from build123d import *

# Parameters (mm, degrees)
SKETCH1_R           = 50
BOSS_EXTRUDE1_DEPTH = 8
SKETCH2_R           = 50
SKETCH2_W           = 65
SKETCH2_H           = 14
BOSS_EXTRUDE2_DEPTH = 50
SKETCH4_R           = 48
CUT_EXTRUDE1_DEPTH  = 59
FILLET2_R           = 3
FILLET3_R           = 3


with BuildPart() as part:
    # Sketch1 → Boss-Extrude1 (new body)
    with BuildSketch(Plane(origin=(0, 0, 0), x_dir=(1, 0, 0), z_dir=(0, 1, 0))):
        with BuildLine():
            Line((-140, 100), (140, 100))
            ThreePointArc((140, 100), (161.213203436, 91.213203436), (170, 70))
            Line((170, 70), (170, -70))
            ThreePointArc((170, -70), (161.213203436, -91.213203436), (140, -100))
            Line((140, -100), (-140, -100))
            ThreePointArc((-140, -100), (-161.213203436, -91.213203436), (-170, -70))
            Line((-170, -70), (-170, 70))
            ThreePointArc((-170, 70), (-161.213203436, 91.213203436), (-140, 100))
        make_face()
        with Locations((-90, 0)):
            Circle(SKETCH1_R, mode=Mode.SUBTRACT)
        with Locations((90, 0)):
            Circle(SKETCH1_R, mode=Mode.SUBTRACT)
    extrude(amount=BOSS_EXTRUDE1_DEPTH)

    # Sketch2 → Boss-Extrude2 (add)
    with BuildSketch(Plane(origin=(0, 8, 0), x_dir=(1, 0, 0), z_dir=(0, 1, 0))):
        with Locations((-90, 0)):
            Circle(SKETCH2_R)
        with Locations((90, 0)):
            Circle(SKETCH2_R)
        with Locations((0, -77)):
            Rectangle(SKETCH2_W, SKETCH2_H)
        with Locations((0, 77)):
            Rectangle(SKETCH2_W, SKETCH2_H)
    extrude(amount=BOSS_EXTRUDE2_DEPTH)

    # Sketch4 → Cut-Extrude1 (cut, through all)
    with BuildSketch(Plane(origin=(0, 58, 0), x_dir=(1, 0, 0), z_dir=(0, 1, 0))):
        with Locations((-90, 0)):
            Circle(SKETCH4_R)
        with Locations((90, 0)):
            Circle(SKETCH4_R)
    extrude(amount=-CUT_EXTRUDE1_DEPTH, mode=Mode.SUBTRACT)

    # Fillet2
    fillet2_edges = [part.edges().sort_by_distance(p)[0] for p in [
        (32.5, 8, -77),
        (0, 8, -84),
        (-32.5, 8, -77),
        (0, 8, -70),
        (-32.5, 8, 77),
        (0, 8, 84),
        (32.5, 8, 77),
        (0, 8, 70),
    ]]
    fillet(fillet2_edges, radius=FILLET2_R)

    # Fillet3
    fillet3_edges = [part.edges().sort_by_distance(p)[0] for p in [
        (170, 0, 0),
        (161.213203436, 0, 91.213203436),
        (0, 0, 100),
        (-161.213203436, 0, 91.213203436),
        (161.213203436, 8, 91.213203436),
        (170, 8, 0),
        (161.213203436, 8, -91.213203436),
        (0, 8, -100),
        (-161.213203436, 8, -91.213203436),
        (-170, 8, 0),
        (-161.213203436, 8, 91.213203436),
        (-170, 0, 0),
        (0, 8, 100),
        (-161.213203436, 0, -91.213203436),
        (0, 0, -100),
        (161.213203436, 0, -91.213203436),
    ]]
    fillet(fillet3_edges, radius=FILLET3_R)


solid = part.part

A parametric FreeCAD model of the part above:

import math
import FreeCAD as App
import Part
import Sketcher

V = App.Vector


def edges_at(feature, points):
    """Names of the edges that pass closest to the given points."""
    edges = feature.Shape.Edges
    near = lambda p: min(range(len(edges)), key=lambda i: edges[i].distToShape(Part.Vertex(*p))[0])
    return sorted({f"Edge{near(p) + 1}" for p in points})


def add_polygon(sketch, points):
    """Adds a closed chain of lines whose ends are joined by coincident constraints."""
    first, n = sketch.GeometryCount, len(points)
    for a, b in zip(points, points[1:] + points[:1]):
        sketch.addGeometry(Part.LineSegment(App.Vector(*a, 0), App.Vector(*b, 0)), False)
    for i in range(n):
        sketch.addConstraint(Sketcher.Constraint("Coincident", first + i, 2, first + (i + 1) % n, 1))

doc = App.newDocument("Part")
body = doc.addObject("PartDesign::Body", "Body")
body.AllowCompound = True

sketch1 = body.newObject("Sketcher::SketchObject", "Sketch")
sketch1.AttachmentSupport = (doc.getObject("XZ_Plane"), [""])
sketch1.MapMode = "FlatFace"
sketch1.addGeometry(Part.LineSegment(V(140, -100, 0), V(-140, -100, 0)), False)
sketch1.addGeometry(Part.ArcOfCircle(Part.Circle(V(-140, -70, 0), V(0, 0, 1), 30), math.radians(180), math.radians(270)), False)
sketch1.addGeometry(Part.LineSegment(V(-170, -70, 0), V(-170, 70, 0)), False)
sketch1.addGeometry(Part.ArcOfCircle(Part.Circle(V(-140, 70, 0), V(0, 0, 1), 30), math.radians(90), math.radians(180)), False)
sketch1.addGeometry(Part.LineSegment(V(-140, 100, 0), V(140, 100, 0)), False)
sketch1.addGeometry(Part.ArcOfCircle(Part.Circle(V(140, 70, 0), V(0, 0, 1), 30), math.radians(0), math.radians(90)), False)
sketch1.addGeometry(Part.LineSegment(V(170, 70, 0), V(170, -70, 0)), False)
sketch1.addGeometry(Part.ArcOfCircle(Part.Circle(V(140, -70, 0), V(0, 0, 1), 30), math.radians(-90), math.radians(0)), False)
sketch1.addGeometry(Part.Circle(V(90, 0, 0), V(0, 0, 1), 50), False)
sketch1.addGeometry(Part.Circle(V(-90, 0, 0), V(0, 0, 1), 50), False)
sketch1.addConstraint(Sketcher.Constraint("Tangent", 0, 2, 1, 2))
sketch1.addConstraint(Sketcher.Constraint("Tangent", 1, 1, 2, 1))
sketch1.addConstraint(Sketcher.Constraint("Tangent", 2, 2, 3, 2))
sketch1.addConstraint(Sketcher.Constraint("Tangent", 3, 1, 4, 1))
sketch1.addConstraint(Sketcher.Constraint("Tangent", 4, 2, 5, 2))
sketch1.addConstraint(Sketcher.Constraint("Tangent", 5, 1, 6, 1))
sketch1.addConstraint(Sketcher.Constraint("Tangent", 6, 2, 7, 2))
sketch1.addConstraint(Sketcher.Constraint("Tangent", 7, 1, 0, 1))
sketch1.addConstraint(Sketcher.Constraint("Horizontal", 0))
sketch1.addConstraint(Sketcher.Constraint("Vertical", 2))
sketch1.addConstraint(Sketcher.Constraint("Horizontal", 4))
sketch1.addConstraint(Sketcher.Constraint("Vertical", 6))
sketch1.addConstraint(Sketcher.Constraint("Equal", 1, 3))
sketch1.addConstraint(Sketcher.Constraint("Equal", 3, 5))
sketch1.addConstraint(Sketcher.Constraint("Equal", 5, 7))
sketch1.addConstraint(Sketcher.Constraint("Equal", 8, 9))
sketch1.addConstraint(Sketcher.Constraint("Symmetric", 1, 3, 5, 3, -1, 1))
sketch1.addConstraint(Sketcher.Constraint("Symmetric", 8, 3, 9, 3, -1, 1))
sketch1.addConstraint(Sketcher.Constraint("PointOnObject", 8, 3, -1))
sketch1.addConstraint(Sketcher.Constraint("Diameter", 8, 100.0))
sketch1.addConstraint(Sketcher.Constraint("Radius", 1, 30.0))
sketch1.addConstraint(Sketcher.Constraint("DistanceX", 0, 2, 0, 1, 280.0))
sketch1.addConstraint(Sketcher.Constraint("DistanceY", 2, 1, 2, 2, 140.0))
sketch1.addConstraint(Sketcher.Constraint("DistanceX", -1, 1, 8, 3, 90.0))
pad1 = body.newObject("PartDesign::Pad", "Pad")
pad1.Profile = sketch1
pad1.Length = 8
pad1.Reversed = True

sketch2 = body.newObject("Sketcher::SketchObject", "Sketch001")
sketch2.AttachmentSupport = (doc.getObject("XZ_Plane"), [""])
sketch2.MapMode = "FlatFace"
sketch2.AttachmentOffset = App.Placement(V(0, 0, -8), App.Rotation())
sketch2.addGeometry(Part.Circle(V(-90, 0, 0), V(0, 0, 1), 50), False)
sketch2.addGeometry(Part.Circle(V(90, 0, 0), V(0, 0, 1), 50), False)
add_polygon(sketch2, [(-32, 70), (-32, 84), (32, 84), (32, 70)])
add_polygon(sketch2, [(-32, -84), (-32, -70), (32, -70), (32, -84)])
sketch2.addConstraint(Sketcher.Constraint("Vertical", 2))
sketch2.addConstraint(Sketcher.Constraint("Horizontal", 3))
sketch2.addConstraint(Sketcher.Constraint("Vertical", 4))
sketch2.addConstraint(Sketcher.Constraint("Horizontal", 5))
sketch2.addConstraint(Sketcher.Constraint("Vertical", 6))
sketch2.addConstraint(Sketcher.Constraint("Horizontal", 7))
sketch2.addConstraint(Sketcher.Constraint("Vertical", 8))
sketch2.addConstraint(Sketcher.Constraint("Horizontal", 9))
sketch2.addConstraint(Sketcher.Constraint("Equal", 0, 1))
sketch2.addConstraint(Sketcher.Constraint("Symmetric", 0, 3, 1, 3, -1, 1))
sketch2.addConstraint(Sketcher.Constraint("Symmetric", 4, 2, 6, 2, -1, 1))
sketch2.addConstraint(Sketcher.Constraint("Symmetric", 2, 2, 8, 2, -1, 1))
sketch2.addConstraint(Sketcher.Constraint("PointOnObject", 0, 3, -1))
sketch2.addConstraint(Sketcher.Constraint("Vertical", 5, 2, 6, 2))
sketch2.addConstraint(Sketcher.Constraint("Diameter", 0, 100.0))
sketch2.addConstraint(Sketcher.Constraint("DistanceX", 3, 1, 3, 2, 65.0))
sketch2.addConstraint(Sketcher.Constraint("DistanceY", 2, 1, 2, 2, 14.0))
sketch2.addConstraint(Sketcher.Constraint("DistanceX", 0, 3, -1, 1, 90.0))
sketch2.addConstraint(Sketcher.Constraint("DistanceY", -1, 1, 2, 2, 84.0))
pad2 = body.newObject("PartDesign::Pad", "Pad001")
pad2.Profile = sketch2
pad2.Length = 50
pad2.Reversed = True

sketch3 = body.newObject("Sketcher::SketchObject", "Sketch002")
sketch3.AttachmentSupport = (doc.getObject("XZ_Plane"), [""])
sketch3.MapMode = "FlatFace"
sketch3.AttachmentOffset = App.Placement(V(0, 0, -58), App.Rotation())
sketch3.addGeometry(Part.Circle(V(-90, 0, 0), V(0, 0, 1), 48), False)
sketch3.addGeometry(Part.Circle(V(90, 0, 0), V(0, 0, 1), 48), False)
sketch3.addConstraint(Sketcher.Constraint("Equal", 0, 1))
sketch3.addConstraint(Sketcher.Constraint("Symmetric", 0, 3, 1, 3, -1, 1))
sketch3.addConstraint(Sketcher.Constraint("PointOnObject", 0, 3, -1))
sketch3.addConstraint(Sketcher.Constraint("Diameter", 0, 96.0))
sketch3.addConstraint(Sketcher.Constraint("DistanceX", 0, 3, -1, 1, 90.0))
pocket1 = body.newObject("PartDesign::Pocket", "Pocket")
pocket1.Profile = sketch3
pocket1.Type = "ThroughAll"
pocket1.Reversed = True
doc.recompute()

fillet = body.newObject("PartDesign::Fillet", "Fillet")
fillet.Base = (pocket1, edges_at(pocket1, [
    (32.5, 8, -77),
    (0, 8, -84),
    (-32.5, 8, -77),
    (0, 8, -70),
    (-32.5, 8, 77),
    (0, 8, 84),
    (32.5, 8, 77),
    (0, 8, 70),
]))
fillet.Radius = 3
doc.recompute()

fillet2 = body.newObject("PartDesign::Fillet", "Fillet001")
fillet2.Base = (fillet, edges_at(fillet, [
    (170, 0, 0),
    (161.213, 0, 91.213),
    (0, 0, 100),
    (-161.213, 0, 91.213),
    (161.213, 8, 91.213),
    (170, 8, 0),
    (161.213, 8, -91.213),
    (0, 8, -100),
    (-161.213, 8, -91.213),
    (-170, 8, 0),
    (-161.213, 8, 91.213),
    (-170, 0, 0),
    (0, 8, 100),
    (-161.213, 0, -91.213),
    (0, 0, -100),
    (161.213, 0, -91.213),
]))
fillet2.Radius = 3

doc.recompute()
